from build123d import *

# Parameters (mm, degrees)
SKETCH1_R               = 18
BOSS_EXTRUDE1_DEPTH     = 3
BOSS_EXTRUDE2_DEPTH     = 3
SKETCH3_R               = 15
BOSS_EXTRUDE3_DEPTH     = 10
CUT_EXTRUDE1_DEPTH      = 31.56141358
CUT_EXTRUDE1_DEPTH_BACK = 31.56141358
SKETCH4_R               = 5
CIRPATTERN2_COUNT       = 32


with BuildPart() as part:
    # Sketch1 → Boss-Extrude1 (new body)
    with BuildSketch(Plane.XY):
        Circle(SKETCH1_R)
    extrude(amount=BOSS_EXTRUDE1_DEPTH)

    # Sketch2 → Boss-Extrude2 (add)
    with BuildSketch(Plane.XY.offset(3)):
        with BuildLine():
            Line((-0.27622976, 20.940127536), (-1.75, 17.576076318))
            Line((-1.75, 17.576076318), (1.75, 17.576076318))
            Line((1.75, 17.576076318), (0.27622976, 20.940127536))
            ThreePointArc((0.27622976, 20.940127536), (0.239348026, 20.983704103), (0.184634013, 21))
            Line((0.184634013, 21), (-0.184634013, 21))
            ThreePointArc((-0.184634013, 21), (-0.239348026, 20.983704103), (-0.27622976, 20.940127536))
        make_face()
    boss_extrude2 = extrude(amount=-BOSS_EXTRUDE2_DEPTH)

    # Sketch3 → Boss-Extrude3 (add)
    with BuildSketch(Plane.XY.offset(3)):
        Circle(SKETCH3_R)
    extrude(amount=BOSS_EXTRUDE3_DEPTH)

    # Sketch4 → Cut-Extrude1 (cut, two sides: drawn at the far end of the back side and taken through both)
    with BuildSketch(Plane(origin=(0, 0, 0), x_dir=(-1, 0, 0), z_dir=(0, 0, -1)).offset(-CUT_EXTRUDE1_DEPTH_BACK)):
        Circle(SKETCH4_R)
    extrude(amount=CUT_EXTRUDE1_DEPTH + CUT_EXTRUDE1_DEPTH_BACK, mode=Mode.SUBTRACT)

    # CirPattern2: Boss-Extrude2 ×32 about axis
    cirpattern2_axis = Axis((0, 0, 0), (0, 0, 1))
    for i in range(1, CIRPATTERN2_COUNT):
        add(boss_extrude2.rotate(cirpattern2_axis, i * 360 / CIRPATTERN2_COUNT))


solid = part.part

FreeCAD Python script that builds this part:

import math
import FreeCAD as App
import Part
import Sketcher

doc = App.newDocument("Part")
body = doc.addObject("PartDesign::Body", "Body")

# Sketch on XY plane
sketch1 = body.newObject("Sketcher::SketchObject", "Sketch")
sketch1.AttachmentSupport = (doc.getObject("XY_Plane"), [""])
sketch1.MapMode = "FlatFace"
sketch1.addGeometry(Part.Circle(App.Vector(0, 0, 0), App.Vector(0, 0, 1), 18), False)
sketch1.addConstraint([
    Sketcher.Constraint("Coincident", 0, 3, -1, 1),
    Sketcher.Constraint("Diameter", 0, 36.0),
])
pad1 = body.newObject("PartDesign::Pad", "Pad")
pad1.Profile = sketch1
pad1.Length = 3

# Sketch on XY plane
sketch2 = body.newObject("Sketcher::SketchObject", "Sketch001")
sketch2.AttachmentSupport = (doc.getObject("XY_Plane"), [""])
sketch2.MapMode = "FlatFace"
sketch2.AttachmentOffset = App.Placement(App.Vector(0, 0, 3), App.Rotation())
sketch2.addGeometry([
    Part.LineSegment(App.Vector(-0.27623, 20.940128, 0), App.Vector(-1.75, 17.576076, 0)),  # 0
    Part.LineSegment(App.Vector(-1.75, 17.576076, 0), App.Vector(1.75, 17.576076, 0)),  # 1
    Part.LineSegment(App.Vector(1.75, 17.576076, 0), App.Vector(0.27623, 20.940128, 0)),  # 2
    Part.ArcOfCircle(Part.Circle(App.Vector(0.184634, 20.9, 0), App.Vector(0, 0, 1), 0.1), math.radians(23.657931), math.radians(90.000001)),  # 3
    Part.LineSegment(App.Vector(0.184634, 21, 0), App.Vector(-0.184634, 21, 0)),  # 4
    Part.ArcOfCircle(Part.Circle(App.Vector(-0.184634, 20.9, 0), App.Vector(0, 0, 1), 0.1), math.radians(89.999999), math.radians(156.342069)),  # 5
], False)
sketch2.addConstraint([
    Sketcher.Constraint("Coincident", 0, 2, 1, 1),
    Sketcher.Constraint("Coincident", 1, 2, 2, 1),
    Sketcher.Constraint("Coincident", 2, 2, 3, 1),
    Sketcher.Constraint("Coincident", 3, 2, 4, 1),
    Sketcher.Constraint("Coincident", 4, 2, 5, 1),
    Sketcher.Constraint("Coincident", 5, 2, 0, 1),
    Sketcher.Constraint("Horizontal", 1),
    Sketcher.Constraint("Horizontal", 4),
    Sketcher.Constraint("Radius", 3, 0.1),
    Sketcher.Constraint("Radius", 5, 0.1),
    Sketcher.Constraint("DistanceX", 1, 1, 1, 2, 3.5),
    Sketcher.Constraint("DistanceY", -1, 1, 3, 2, 21.0),
    Sketcher.Constraint("DistanceX", 0, 2, -1, 1, 1.75),
    Sketcher.Constraint("DistanceX", 4, 2, 4, 1, 0.369268),
    Sketcher.Constraint("DistanceX", -1, 1, 2, 2, 0.27623),
    Sketcher.Constraint("DistanceX", 5, 2, -1, 1, 0.27623),
    Sketcher.Constraint("DistanceX", 5, 3, 3, 3, 0.369268),
    Sketcher.Constraint("DistanceY", 1, 2, 2, 2, 3.364051),
    Sketcher.Constraint("DistanceX", 5, 3, 3, 2, 0.369268),
    Sketcher.Constraint("Distance", 0, 3.672716),
])
pad2 = body.newObject("PartDesign::Pad", "Pad001")
pad2.Profile = sketch2
pad2.Length = 3
pad2.Reversed = True

# Sketch on XY plane
sketch3 = body.newObject("Sketcher::SketchObject", "Sketch002")
sketch3.AttachmentSupport = (doc.getObject("XY_Plane"), [""])
sketch3.MapMode = "FlatFace"
sketch3.AttachmentOffset = App.Placement(App.Vector(0, 0, 3), App.Rotation())
sketch3.addGeometry(Part.Circle(App.Vector(0, 0, 0), App.Vector(0, 0, 1), 15), False)
sketch3.addConstraint([
    Sketcher.Constraint("Coincident", 0, 3, -1, 1),
    Sketcher.Constraint("Diameter", 0, 30.0),
])
pad3 = body.newObject("PartDesign::Pad", "Pad002")
pad3.Profile = sketch3
pad3.Length = 10

# Sketch on XY plane
sketch4 = body.newObject("Sketcher::SketchObject", "Sketch003")
sketch4.AttachmentSupport = (doc.getObject("XY_Plane"), [""])
sketch4.MapMode = "FlatFace"
sketch4.addGeometry(Part.Circle(App.Vector(0, 0, 0), App.Vector(0, 0, 1), 5), False)
sketch4.addConstraint([
    Sketcher.Constraint("Coincident", 0, 3, -1, 1),
    Sketcher.Constraint("Diameter", 0, 10.0),
])
pocket1 = body.newObject("PartDesign::Pocket", "Pocket")
pocket1.Profile = sketch4
pocket1.Type = "ThroughAll"
pocket1.Midplane = True
doc.recompute()

polarpattern = body.newObject("PartDesign::PolarPattern", "PolarPattern")
polarpattern.Originals = [pad2]
polarpattern.Axis = (doc.getObject("Z_Axis"), [""])
polarpattern.Angle = 360
polarpattern.Occurrences = 32
body.Tip = polarpattern

doc.recompute()
